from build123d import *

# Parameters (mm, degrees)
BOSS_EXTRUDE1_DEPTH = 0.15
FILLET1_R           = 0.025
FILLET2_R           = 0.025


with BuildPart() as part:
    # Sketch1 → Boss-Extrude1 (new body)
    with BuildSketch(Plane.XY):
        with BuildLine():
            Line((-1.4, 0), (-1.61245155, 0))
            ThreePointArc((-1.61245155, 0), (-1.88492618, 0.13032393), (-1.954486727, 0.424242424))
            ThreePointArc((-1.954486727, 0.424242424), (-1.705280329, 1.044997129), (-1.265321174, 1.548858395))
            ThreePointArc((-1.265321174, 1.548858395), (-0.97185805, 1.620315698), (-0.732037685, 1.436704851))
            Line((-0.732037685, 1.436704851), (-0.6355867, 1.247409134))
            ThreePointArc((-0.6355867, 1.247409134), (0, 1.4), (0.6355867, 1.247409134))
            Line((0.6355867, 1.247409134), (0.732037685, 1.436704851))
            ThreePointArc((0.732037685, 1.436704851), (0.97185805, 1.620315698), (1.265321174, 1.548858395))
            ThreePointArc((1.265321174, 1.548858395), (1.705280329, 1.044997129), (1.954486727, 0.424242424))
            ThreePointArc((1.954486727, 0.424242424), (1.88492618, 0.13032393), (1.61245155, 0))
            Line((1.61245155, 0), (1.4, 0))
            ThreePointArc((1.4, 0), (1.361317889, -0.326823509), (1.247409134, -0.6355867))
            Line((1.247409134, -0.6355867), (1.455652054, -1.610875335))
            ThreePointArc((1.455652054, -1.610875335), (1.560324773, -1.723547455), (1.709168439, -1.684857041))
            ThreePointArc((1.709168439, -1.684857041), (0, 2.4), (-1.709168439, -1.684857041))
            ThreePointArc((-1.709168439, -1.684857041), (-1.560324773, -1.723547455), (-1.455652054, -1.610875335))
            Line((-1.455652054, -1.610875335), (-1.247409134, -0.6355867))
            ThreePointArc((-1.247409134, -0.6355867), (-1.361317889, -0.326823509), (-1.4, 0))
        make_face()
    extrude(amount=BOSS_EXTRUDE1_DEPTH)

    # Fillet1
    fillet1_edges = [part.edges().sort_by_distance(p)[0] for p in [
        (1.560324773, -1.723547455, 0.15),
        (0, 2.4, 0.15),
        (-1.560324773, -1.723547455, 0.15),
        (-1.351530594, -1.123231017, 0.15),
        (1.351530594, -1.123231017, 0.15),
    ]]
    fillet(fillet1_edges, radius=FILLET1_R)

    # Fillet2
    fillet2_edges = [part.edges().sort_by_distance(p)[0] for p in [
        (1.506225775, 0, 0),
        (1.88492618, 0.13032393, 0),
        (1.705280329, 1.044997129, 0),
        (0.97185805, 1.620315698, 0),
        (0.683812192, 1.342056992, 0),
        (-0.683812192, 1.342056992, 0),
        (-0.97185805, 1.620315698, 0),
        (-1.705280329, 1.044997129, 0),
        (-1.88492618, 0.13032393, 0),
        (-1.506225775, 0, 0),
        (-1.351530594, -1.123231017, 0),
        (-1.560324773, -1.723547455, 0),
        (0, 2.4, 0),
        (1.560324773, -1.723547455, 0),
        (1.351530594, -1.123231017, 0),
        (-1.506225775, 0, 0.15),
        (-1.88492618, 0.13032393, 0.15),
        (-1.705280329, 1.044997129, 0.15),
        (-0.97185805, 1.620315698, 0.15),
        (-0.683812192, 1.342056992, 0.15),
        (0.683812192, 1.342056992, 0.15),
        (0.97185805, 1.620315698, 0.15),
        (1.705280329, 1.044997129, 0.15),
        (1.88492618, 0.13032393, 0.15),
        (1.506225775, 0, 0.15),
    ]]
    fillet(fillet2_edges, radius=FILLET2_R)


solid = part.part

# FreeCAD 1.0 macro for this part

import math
import FreeCAD as App
import Part
import Sketcher
from FreeCAD import Vector
Q = App.Units.Quantity


def edges_at(feature, points):
    """Names of the edges that pass closest to the given points."""
    edges = feature.Shape.Edges
    near = lambda p: min(range(len(edges)), key=lambda i: edges[i].distToShape(Part.Vertex(*p))[0])
    return sorted({f"Edge{near(p) + 1}" for p in points})

doc = App.newDocument("Part")
body = doc.addObject("PartDesign::Body", "Body")

# Sketch on XY plane
sketch1 = body.newObject("Sketcher::SketchObject", "Sketch")
sketch1.AttachmentSupport = (doc.getObject("XY_Plane"), [""])
sketch1.MapMode = "FlatFace"
sketch1.addGeometry([
    Part.LineSegment(Vector(-1.4, 0, 0), Vector(-1.61, 0, 0)),  # 0
    Part.ArcOfCircle(Part.Circle(Vector(-1.61, 0.35, 0), Vector(0, 0, 1), 0.35), math.radians(168), math.radians(270)),  # 1
    Part.ArcOfCircle(Part.Circle(Vector(0, 0, 0), Vector(0, 0, 1), 2), math.radians(129), math.radians(168)),  # 2
    Part.ArcOfCircle(Part.Circle(Vector(-1.04, 1.28, 0), Vector(0, 0, 1), 0.35), math.radians(27), math.radians(129)),  # 3
    Part.LineSegment(Vector(-0.73, 1.44, 0), Vector(-0.64, 1.25, 0)),  # 4
    Part.ArcOfCircle(Part.Circle(Vector(0, 0, 0), Vector(0, 0, 1), 1.4), math.radians(63), math.radians(117)),  # 5
    Part.LineSegment(Vector(0.64, 1.25, 0), Vector(0.73, 1.44, 0)),  # 6
    Part.ArcOfCircle(Part.Circle(Vector(1.04, 1.28, 0), Vector(0, 0, 1), 0.35), math.radians(51), math.radians(153)),  # 7
    Part.ArcOfCircle(Part.Circle(Vector(0, 0, 0), Vector(0, 0, 1), 2), math.radians(12), math.radians(51)),  # 8
    Part.ArcOfCircle(Part.Circle(Vector(1.61, 0.35, 0), Vector(0, 0, 1), 0.35), math.radians(-90), math.radians(12)),  # 9
    Part.LineSegment(Vector(1.61, 0, 0), Vector(1.4, 0, 0)),  # 10
    Part.ArcOfCircle(Part.Circle(Vector(0, 0, 0), Vector(0, 0, 1), 1.4), math.radians(-27), math.radians(0)),  # 11
    Part.LineSegment(Vector(1.25, -0.64, 0), Vector(1.46, -1.61, 0)),  # 12
    Part.ArcOfCircle(Part.Circle(Vector(1.6, -1.58, 0), Vector(0, 0, 1), 0.15), math.radians(-168), math.radians(-45)),  # 13
    Part.ArcOfCircle(Part.Circle(Vector(0, 0, 0), Vector(0, 0, 1), 2.4), math.radians(-45), math.radians(225)),  # 14
    Part.ArcOfCircle(Part.Circle(Vector(-1.6, -1.58, 0), Vector(0, 0, 1), 0.15), math.radians(-135), math.radians(-12)),  # 15
    Part.LineSegment(Vector(-1.46, -1.61, 0), Vector(-1.25, -0.64, 0)),  # 16
    Part.ArcOfCircle(Part.Circle(Vector(0, 0, 0), Vector(0, 0, 1), 1.4), math.radians(180), math.radians(207)),  # 17
], False)
sketch1.addConstraint([
    Sketcher.Constraint("Tangent", 0, 2, 1, 2),
    Sketcher.Constraint("Tangent", 1, 1, 2, 2),
    Sketcher.Constraint("Tangent", 2, 1, 3, 2),
    Sketcher.Constraint("Tangent", 3, 1, 4, 1),
    Sketcher.Constraint("Coincident", 4, 2, 5, 2),
    Sketcher.Constraint("Coincident", 5, 1, 6, 1),
    Sketcher.Constraint("Tangent", 6, 2, 7, 2),
    Sketcher.Constraint("Tangent", 7, 1, 8, 2),
    Sketcher.Constraint("Tangent", 8, 1, 9, 2),
    Sketcher.Constraint("Tangent", 9, 1, 10, 1),
    Sketcher.Constraint("Coincident", 10, 2, 11, 2),
    Sketcher.Constraint("Coincident", 11, 1, 12, 1),
    Sketcher.Constraint("Tangent", 12, 2, 13, 1),
    Sketcher.Constraint("Tangent", 13, 2, 14, 1),
    Sketcher.Constraint("Tangent", 14, 2, 15, 1),
    Sketcher.Constraint("Tangent", 15, 2, 16, 1),
    Sketcher.Constraint("Coincident", 16, 2, 17, 2),
    Sketcher.Constraint("Coincident", 17, 1, 0, 1),
    Sketcher.Constraint("Horizontal", 0),
    Sketcher.Constraint("Horizontal", 10),
    Sketcher.Constraint("Coincident", 2, 3, -1, 1),
    Sketcher.Constraint("Coincident", 5, 3, -1, 1),
    Sketcher.Constraint("Coincident", 8, 3, -1, 1),
    Sketcher.Constraint("Coincident", 11, 3, -1, 1),
    Sketcher.Constraint("Coincident", 14, 3, -1, 1),
    Sketcher.Constraint("Coincident", 17, 3, -1, 1),
    Sketcher.Constraint("Equal", 1, 3),
    Sketcher.Constraint("Equal", 3, 7),
    Sketcher.Constraint("Equal", 2, 8),
    Sketcher.Constraint("Equal", 7, 9),
    Sketcher.Constraint("Equal", 5, 11),
    Sketcher.Constraint("Equal", 13, 15),
    Sketcher.Constraint("Equal", 11, 17),
    Sketcher.Constraint("Symmetric", 0, 2, 9, 1, -1, 1),
    Sketcher.Constraint("Symmetric", 3, 1, 6, 2, -2),
    Sketcher.Constraint("Symmetric", 12, 2, 15, 2, -2),
    Sketcher.Constraint("Radius", 2, 2.0),
    Sketcher.Constraint("Radius", 5, 1.4),
    Sketcher.Constraint("Radius", 14, 2.4),
    Sketcher.Constraint("Angle", 4, Q("-63 deg")),
    Sketcher.Constraint("Radius", 1, 0.35),
    Sketcher.Constraint("Radius", 13, 0.15),
    Sketcher.Constraint("DistanceY", 4, 2, 3, 3, 0.030399),
    Sketcher.Constraint("DistanceX", 12, 2, 9, 1, 0.156799),
    Sketcher.Constraint("DistanceY", 14, 2, 1, 1, 2.109099),
])
pad1 = body.newObject("PartDesign::Pad", "Pad")
pad1.Profile = sketch1
pad1.Length = 0.15
doc.recompute()

fillet = body.newObject("PartDesign::Fillet", "Fillet")
fillet.Base = (pad1, edges_at(pad1, [
    (1.56, -1.724, 0.15),
    (0, 2.4, 0.15),
    (-1.56, -1.724, 0.15),
    (-1.352, -1.123, 0.15),
    (1.352, -1.123, 0.15),
]))
fillet.Radius = 0.025
doc.recompute()

fillet2 = body.newObject("PartDesign::Fillet", "Fillet001")
fillet2.Base = (fillet, edges_at(fillet, [
    (1.506, 0, 0),
    (1.885, 0.13, 0),
    (1.705, 1.045, 0),
    (0.972, 1.62, 0),
    (0.684, 1.342, 0),
    (-0.684, 1.342, 0),
    (-0.972, 1.62, 0),
    (-1.705, 1.045, 0),
    (-1.885, 0.13, 0),
    (-1.506, 0, 0),
    (-1.352, -1.123, 0),
    (-1.56, -1.724, 0),
    (0, 2.4, 0),
    (1.56, -1.724, 0),
    (1.352, -1.123, 0),
    (-1.506, 0, 0.15),
    (-1.885, 0.13, 0.15),
    (-1.705, 1.045, 0.15),
    (-0.972, 1.62, 0.15),
    (-0.684, 1.342, 0.15),
    (0.684, 1.342, 0.15),
    (0.972, 1.62, 0.15),
    (1.705, 1.045, 0.15),
    (1.885, 0.13, 0.15),
    (1.506, 0, 0.15),
]))
fillet2.Radius = 0.025

doc.recompute()
